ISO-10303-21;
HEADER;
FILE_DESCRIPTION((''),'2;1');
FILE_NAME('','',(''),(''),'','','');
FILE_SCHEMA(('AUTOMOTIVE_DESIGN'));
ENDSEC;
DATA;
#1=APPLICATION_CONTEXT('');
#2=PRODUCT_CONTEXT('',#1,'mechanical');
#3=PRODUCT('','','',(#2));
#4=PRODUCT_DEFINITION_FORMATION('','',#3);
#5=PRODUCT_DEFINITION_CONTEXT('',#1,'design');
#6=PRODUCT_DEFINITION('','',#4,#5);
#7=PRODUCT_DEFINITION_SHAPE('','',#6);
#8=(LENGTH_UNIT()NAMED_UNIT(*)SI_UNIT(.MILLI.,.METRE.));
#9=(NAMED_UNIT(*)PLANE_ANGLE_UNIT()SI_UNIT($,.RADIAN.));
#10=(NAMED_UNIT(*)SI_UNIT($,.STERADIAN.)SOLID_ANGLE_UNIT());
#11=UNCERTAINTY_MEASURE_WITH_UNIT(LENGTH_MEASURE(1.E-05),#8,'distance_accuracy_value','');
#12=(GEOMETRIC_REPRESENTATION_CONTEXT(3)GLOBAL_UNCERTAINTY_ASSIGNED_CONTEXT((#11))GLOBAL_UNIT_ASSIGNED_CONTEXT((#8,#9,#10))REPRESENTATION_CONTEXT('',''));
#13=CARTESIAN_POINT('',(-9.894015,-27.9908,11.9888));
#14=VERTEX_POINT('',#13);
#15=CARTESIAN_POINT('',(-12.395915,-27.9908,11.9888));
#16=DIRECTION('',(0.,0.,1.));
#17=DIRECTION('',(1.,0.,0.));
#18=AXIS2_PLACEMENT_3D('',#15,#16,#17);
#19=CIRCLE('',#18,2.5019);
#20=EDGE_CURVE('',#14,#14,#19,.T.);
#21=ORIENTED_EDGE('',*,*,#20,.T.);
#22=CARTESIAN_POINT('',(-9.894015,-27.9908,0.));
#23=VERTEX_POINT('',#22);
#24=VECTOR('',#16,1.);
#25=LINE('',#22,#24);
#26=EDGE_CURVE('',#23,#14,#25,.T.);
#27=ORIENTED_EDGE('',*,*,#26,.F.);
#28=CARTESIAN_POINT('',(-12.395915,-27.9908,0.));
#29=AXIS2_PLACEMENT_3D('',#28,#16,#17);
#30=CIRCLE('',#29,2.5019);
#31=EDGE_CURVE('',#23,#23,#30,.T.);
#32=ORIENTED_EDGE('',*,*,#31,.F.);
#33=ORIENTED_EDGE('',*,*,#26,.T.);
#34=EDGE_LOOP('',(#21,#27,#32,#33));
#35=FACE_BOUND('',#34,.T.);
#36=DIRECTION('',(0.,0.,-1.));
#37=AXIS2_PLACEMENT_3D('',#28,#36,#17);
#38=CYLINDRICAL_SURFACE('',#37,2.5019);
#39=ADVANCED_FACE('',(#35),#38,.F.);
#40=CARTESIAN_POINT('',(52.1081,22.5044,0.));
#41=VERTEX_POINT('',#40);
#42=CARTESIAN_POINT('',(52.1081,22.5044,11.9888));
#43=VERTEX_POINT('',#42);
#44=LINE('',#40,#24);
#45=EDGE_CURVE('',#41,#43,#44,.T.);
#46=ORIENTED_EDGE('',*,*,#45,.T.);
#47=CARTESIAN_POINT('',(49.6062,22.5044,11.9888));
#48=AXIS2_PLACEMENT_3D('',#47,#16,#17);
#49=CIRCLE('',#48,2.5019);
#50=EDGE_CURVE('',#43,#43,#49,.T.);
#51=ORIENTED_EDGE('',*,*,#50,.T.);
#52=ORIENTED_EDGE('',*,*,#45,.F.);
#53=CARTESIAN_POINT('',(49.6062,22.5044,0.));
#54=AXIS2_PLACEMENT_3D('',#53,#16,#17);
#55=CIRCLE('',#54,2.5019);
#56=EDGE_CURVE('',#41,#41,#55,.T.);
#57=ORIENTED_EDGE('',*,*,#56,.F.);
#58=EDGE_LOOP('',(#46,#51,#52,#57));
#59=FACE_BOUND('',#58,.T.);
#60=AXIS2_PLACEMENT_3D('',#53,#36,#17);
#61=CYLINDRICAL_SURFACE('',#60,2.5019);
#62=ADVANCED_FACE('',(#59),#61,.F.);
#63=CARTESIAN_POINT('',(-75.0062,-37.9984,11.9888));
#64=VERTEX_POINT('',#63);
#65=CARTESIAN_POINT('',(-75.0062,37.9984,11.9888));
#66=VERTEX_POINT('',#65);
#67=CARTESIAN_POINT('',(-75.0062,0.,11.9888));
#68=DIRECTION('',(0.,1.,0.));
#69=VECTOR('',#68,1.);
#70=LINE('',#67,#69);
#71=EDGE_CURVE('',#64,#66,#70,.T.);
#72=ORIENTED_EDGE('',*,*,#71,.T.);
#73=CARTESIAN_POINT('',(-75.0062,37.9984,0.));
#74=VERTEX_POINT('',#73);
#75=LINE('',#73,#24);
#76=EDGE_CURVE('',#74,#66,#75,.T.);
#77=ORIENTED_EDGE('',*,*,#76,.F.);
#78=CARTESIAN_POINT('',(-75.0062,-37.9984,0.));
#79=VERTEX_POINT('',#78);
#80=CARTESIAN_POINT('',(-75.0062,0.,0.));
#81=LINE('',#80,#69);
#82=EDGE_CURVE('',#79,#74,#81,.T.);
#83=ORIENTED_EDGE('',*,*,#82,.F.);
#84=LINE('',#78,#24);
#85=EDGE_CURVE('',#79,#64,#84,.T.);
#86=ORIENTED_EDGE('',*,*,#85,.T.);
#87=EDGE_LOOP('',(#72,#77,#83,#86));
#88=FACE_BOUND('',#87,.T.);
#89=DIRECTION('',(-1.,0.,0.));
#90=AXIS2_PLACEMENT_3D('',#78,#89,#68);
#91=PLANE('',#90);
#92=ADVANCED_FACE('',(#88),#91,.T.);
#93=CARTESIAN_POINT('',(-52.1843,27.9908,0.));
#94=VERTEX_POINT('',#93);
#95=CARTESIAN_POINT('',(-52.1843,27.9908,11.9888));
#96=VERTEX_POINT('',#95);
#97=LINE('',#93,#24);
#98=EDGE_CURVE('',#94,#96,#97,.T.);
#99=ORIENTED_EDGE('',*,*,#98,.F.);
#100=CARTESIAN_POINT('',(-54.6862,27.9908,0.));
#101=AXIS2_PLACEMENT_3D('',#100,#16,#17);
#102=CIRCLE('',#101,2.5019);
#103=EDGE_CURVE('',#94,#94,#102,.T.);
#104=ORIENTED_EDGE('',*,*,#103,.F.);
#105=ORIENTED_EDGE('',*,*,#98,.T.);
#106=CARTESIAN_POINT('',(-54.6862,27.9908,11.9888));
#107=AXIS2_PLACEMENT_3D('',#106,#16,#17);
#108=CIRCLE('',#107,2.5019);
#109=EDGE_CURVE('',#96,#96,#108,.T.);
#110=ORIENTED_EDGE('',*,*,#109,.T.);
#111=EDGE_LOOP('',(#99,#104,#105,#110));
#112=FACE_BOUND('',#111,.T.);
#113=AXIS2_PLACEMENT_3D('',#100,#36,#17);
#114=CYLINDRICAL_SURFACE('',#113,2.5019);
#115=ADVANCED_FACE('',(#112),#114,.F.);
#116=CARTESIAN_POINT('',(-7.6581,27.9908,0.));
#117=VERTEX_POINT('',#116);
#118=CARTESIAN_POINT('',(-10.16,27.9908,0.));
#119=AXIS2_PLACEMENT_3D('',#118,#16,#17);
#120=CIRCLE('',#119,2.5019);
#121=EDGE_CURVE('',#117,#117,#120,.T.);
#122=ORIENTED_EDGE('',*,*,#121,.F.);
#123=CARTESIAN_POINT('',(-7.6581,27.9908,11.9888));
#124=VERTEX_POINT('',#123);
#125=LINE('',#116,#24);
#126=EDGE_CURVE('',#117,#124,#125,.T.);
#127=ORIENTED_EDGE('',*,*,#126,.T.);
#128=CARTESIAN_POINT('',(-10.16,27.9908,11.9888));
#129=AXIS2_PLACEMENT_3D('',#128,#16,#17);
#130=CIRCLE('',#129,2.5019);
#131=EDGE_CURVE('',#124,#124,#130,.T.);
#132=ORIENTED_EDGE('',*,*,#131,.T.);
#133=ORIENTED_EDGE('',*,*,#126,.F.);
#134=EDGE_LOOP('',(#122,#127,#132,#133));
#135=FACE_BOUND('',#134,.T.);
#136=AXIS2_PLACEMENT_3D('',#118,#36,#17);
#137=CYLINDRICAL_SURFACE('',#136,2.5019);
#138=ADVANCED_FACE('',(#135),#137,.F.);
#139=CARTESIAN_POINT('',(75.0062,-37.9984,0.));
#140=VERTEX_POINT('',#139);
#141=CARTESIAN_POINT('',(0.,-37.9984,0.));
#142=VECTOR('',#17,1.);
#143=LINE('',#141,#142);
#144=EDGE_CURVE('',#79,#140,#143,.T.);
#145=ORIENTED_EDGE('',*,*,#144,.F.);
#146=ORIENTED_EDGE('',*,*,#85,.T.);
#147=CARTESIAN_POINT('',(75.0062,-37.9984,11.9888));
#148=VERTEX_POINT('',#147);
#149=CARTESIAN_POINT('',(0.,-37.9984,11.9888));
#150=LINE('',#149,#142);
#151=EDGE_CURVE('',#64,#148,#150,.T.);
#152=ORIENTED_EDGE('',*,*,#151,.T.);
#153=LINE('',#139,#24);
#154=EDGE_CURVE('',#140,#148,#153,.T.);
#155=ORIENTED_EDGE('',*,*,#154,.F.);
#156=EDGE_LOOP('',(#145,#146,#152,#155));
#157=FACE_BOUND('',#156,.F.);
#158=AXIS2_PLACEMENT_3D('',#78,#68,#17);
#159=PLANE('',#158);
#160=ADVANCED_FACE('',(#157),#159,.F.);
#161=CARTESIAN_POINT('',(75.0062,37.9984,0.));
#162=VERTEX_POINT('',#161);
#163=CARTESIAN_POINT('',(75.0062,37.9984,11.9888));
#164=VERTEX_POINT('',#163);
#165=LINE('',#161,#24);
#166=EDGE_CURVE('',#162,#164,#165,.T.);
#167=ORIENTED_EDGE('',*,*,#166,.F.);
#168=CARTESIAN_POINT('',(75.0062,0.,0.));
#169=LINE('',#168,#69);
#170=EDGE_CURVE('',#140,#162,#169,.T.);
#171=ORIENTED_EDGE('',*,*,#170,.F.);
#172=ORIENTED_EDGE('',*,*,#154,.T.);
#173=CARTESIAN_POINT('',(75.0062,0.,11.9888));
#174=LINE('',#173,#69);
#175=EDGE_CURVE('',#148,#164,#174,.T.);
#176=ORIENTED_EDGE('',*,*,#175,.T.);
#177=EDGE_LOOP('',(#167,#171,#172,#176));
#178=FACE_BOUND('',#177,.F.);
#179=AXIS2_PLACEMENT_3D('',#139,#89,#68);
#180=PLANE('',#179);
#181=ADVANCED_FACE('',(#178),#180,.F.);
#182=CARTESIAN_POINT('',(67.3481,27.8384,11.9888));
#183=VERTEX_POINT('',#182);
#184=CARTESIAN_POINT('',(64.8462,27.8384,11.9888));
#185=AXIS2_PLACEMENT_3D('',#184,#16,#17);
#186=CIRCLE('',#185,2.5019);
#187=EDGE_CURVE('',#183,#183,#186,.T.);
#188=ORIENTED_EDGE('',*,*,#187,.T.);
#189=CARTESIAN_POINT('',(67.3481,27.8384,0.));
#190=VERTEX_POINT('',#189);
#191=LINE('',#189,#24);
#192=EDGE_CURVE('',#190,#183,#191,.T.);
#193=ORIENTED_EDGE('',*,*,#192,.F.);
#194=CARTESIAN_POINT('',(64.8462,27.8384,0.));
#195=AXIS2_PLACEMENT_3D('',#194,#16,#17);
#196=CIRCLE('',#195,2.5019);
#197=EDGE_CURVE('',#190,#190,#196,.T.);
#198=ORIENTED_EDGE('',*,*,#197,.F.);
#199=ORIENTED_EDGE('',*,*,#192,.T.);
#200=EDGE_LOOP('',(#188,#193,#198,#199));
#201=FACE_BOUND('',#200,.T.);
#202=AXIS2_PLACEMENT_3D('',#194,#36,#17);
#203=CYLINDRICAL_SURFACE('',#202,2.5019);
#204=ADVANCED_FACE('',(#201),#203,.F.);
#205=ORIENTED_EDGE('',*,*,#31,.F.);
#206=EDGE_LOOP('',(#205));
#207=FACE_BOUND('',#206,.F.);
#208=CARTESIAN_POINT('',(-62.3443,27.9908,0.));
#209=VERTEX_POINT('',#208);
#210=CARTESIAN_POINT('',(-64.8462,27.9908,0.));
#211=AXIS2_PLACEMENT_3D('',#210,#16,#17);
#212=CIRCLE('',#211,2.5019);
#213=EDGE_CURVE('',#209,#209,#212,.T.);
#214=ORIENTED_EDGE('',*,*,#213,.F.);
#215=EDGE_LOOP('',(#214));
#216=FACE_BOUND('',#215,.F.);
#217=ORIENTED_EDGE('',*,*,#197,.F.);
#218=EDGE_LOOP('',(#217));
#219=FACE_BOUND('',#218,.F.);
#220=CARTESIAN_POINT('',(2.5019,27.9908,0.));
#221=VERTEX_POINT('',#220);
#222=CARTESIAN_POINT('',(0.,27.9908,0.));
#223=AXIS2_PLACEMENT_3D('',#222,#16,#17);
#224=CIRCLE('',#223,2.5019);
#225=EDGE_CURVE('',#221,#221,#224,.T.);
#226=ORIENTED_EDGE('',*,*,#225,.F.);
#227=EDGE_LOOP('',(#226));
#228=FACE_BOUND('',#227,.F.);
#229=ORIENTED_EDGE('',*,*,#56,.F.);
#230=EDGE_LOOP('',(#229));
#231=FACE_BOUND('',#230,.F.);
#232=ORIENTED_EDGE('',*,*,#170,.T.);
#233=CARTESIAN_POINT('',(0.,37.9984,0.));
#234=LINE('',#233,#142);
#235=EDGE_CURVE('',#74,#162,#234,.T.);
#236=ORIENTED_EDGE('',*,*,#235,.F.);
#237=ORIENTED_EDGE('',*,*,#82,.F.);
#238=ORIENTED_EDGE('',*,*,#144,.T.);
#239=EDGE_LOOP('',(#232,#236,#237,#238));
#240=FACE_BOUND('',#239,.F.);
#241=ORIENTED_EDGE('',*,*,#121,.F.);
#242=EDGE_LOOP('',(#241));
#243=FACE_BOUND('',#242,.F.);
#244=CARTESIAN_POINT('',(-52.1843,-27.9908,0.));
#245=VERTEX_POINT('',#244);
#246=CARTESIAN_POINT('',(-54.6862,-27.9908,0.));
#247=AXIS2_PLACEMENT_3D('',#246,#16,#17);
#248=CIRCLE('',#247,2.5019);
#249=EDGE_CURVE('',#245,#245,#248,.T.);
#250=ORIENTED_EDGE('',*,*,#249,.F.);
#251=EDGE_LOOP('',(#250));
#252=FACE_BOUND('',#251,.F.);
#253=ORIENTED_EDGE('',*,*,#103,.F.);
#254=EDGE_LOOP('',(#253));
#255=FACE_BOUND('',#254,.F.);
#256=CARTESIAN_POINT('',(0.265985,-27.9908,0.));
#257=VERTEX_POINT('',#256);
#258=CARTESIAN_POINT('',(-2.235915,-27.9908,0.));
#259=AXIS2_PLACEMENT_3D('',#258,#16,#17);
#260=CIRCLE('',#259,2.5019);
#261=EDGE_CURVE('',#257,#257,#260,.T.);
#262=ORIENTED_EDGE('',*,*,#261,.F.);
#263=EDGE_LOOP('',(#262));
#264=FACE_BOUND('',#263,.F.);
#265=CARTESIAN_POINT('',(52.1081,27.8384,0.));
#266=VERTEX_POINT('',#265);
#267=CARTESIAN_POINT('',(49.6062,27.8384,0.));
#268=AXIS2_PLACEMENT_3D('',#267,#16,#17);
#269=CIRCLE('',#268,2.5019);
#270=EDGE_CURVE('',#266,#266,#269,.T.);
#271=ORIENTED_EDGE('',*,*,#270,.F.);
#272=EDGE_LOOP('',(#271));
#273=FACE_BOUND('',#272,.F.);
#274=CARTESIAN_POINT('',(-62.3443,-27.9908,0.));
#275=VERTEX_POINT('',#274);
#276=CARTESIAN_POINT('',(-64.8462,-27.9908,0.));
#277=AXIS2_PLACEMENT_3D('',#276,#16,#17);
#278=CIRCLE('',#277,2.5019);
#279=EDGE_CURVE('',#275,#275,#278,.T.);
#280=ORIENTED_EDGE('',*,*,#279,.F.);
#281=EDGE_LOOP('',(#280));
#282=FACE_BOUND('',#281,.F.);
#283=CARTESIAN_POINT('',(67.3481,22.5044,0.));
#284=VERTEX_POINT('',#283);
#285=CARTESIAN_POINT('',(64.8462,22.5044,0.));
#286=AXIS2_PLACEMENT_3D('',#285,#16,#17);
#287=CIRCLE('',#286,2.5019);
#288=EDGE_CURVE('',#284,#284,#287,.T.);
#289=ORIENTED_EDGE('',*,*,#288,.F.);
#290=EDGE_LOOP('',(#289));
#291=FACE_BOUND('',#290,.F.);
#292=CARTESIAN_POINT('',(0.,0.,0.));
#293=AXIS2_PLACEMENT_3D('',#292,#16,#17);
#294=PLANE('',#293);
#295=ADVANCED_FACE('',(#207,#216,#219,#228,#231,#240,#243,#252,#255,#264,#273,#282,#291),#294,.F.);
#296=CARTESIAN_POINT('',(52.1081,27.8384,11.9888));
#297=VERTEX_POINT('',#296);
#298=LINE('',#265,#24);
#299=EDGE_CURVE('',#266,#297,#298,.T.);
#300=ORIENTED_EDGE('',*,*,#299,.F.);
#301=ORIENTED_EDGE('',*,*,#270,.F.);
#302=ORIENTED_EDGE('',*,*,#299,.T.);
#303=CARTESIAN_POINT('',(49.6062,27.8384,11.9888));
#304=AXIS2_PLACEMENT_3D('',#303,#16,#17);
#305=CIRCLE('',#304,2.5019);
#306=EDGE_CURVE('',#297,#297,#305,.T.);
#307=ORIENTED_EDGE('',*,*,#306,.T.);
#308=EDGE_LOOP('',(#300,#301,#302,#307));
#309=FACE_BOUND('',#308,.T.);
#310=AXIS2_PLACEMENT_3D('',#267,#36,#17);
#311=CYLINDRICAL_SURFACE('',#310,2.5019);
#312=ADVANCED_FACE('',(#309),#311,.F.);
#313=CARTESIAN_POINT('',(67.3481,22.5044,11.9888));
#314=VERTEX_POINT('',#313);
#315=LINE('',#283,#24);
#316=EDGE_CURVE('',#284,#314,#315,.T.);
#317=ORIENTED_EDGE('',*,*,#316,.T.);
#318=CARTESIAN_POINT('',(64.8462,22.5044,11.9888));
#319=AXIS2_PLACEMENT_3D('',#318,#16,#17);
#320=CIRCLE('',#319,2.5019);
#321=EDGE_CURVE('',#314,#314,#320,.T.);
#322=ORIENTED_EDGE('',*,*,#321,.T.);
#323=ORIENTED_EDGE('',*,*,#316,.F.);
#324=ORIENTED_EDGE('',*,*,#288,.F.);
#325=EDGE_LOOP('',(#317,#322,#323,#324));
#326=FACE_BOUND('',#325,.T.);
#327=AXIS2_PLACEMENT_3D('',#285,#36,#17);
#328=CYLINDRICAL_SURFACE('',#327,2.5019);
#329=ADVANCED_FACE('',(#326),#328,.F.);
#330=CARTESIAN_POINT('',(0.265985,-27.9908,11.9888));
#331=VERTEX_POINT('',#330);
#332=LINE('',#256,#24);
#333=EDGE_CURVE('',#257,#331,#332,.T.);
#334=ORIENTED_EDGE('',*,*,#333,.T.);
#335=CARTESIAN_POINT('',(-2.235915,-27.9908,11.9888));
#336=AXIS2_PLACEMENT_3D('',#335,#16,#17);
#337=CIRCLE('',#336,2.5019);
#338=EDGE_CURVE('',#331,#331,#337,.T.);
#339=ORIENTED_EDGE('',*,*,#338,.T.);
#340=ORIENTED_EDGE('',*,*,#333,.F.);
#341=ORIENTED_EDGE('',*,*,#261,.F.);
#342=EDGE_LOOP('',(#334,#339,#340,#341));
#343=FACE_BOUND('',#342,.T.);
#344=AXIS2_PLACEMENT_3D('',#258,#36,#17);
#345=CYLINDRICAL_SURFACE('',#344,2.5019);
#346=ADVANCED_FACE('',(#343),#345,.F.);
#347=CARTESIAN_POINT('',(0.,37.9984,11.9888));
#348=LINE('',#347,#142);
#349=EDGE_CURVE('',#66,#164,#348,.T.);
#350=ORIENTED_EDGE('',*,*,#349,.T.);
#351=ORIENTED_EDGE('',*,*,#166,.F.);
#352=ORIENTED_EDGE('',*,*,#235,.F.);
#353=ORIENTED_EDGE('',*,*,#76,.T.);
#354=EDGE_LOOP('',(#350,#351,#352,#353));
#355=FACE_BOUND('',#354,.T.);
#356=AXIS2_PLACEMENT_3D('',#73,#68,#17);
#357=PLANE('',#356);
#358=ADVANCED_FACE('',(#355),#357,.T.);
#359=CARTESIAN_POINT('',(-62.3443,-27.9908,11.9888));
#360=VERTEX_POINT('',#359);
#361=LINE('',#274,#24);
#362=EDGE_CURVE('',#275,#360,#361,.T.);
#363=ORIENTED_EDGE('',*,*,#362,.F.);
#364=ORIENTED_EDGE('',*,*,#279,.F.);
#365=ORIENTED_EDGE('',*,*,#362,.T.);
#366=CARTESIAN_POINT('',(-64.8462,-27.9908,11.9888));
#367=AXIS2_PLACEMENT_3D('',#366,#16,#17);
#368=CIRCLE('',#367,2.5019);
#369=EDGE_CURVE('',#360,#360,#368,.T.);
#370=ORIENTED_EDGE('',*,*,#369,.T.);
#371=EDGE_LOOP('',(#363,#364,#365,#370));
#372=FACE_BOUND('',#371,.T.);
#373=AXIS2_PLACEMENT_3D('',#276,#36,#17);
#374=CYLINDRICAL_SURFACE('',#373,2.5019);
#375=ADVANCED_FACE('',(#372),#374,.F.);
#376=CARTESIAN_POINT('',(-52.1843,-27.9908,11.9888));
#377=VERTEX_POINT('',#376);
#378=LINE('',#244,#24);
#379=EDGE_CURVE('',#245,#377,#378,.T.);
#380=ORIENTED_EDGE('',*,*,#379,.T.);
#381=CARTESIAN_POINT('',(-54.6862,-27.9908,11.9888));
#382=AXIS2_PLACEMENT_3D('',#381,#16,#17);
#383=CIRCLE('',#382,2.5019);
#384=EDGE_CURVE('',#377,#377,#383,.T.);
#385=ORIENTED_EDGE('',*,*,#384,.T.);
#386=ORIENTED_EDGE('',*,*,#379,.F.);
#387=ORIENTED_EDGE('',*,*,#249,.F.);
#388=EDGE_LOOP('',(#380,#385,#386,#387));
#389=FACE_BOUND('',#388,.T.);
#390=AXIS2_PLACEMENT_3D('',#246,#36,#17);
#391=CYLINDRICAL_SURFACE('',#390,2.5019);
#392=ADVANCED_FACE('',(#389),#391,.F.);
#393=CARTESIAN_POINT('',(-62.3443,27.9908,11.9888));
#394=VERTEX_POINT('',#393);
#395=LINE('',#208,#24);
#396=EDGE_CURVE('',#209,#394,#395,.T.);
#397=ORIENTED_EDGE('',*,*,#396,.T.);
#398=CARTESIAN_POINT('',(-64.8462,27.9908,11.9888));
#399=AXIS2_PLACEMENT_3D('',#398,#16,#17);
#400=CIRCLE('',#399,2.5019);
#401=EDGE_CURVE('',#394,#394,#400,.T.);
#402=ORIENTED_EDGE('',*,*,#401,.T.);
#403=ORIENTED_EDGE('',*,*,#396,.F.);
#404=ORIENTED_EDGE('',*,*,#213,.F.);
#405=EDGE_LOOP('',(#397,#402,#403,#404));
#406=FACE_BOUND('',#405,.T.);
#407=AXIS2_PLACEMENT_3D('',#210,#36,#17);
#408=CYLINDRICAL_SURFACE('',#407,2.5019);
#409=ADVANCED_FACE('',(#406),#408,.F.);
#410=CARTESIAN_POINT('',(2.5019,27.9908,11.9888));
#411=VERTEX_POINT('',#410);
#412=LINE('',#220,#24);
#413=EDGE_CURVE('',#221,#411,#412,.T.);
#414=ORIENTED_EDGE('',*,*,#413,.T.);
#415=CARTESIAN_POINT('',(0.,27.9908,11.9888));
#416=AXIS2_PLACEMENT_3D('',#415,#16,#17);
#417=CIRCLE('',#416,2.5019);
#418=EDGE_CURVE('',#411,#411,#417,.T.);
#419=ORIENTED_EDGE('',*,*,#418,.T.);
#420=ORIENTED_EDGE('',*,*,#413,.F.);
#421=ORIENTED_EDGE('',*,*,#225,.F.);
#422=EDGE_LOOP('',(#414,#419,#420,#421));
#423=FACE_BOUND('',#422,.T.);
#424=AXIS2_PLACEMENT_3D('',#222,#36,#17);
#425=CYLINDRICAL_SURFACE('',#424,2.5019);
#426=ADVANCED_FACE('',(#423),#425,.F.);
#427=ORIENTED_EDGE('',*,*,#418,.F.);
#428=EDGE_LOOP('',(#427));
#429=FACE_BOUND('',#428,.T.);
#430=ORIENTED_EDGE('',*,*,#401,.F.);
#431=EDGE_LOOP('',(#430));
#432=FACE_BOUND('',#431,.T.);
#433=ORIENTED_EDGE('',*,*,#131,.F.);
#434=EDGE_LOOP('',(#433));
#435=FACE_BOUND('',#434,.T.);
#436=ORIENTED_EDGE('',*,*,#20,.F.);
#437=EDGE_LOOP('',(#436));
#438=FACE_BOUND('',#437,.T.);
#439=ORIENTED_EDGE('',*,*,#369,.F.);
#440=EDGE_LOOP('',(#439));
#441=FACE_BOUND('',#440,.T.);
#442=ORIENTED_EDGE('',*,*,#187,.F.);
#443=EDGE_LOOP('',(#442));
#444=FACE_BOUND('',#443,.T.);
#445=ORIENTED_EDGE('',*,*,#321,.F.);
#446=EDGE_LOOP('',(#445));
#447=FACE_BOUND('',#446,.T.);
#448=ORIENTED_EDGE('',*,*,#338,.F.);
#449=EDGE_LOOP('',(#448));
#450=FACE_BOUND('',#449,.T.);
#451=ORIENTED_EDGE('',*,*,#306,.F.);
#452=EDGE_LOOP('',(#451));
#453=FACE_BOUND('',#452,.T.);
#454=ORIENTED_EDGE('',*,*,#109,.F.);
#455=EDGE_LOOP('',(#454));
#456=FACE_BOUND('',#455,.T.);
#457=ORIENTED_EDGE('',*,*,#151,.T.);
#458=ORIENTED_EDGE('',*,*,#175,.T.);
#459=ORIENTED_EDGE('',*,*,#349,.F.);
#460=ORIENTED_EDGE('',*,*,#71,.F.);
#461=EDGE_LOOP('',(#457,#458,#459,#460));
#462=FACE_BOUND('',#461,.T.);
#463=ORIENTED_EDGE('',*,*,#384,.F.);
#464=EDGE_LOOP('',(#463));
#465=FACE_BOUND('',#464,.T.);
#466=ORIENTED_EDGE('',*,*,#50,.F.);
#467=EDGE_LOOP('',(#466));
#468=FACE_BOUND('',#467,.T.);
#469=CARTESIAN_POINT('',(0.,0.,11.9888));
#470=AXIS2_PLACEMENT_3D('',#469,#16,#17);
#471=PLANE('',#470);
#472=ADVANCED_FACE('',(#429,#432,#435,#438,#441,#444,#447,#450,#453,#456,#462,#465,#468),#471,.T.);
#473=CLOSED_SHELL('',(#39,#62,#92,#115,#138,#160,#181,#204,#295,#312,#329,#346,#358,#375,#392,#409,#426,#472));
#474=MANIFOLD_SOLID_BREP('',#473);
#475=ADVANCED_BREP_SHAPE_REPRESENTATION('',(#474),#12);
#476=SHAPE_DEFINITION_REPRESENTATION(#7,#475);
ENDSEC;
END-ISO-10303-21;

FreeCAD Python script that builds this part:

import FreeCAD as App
import Part
import Sketcher

V = App.Vector
Q = App.Units.Quantity


def add_polygon(sketch, points):
    """Adds a closed chain of lines whose ends are joined by coincident constraints."""
    first, n = sketch.GeometryCount, len(points)
    for a, b in zip(points, points[1:] + points[:1]):
        sketch.addGeometry(Part.LineSegment(App.Vector(*a, 0), App.Vector(*b, 0)), False)
    for i in range(n):
        sketch.addConstraint(Sketcher.Constraint("Coincident", first + i, 2, first + (i + 1) % n, 1))

doc = App.newDocument("Part")
body = doc.addObject("PartDesign::Body", "Body")

sketch1 = body.newObject("Sketcher::SketchObject", "Sketch")
sketch1.AttachmentSupport = (doc.getObject("XY_Plane"), [""])
sketch1.MapMode = "FlatFace"
add_polygon(sketch1, [(-75, 38), (-75, -38), (75, -38), (75, 38)])
sketch1.addGeometry(Part.Circle(V(-64.8, -28, 0), V(0, 0, 1), 2.5), False)
sketch1.addGeometry(Part.Circle(V(-54.7, -28, 0), V(0, 0, 1), 2.5), False)
sketch1.addGeometry(Part.Circle(V(-12.4, -28, 0), V(0, 0, 1), 2.5), False)
sketch1.addGeometry(Part.Circle(V(-2.2, -28, 0), V(0, 0, 1), 2.5), False)
sketch1.addGeometry(Part.Circle(V(-64.8, 28, 0), V(0, 0, 1), 2.5), False)
sketch1.addGeometry(Part.Circle(V(-54.7, 28, 0), V(0, 0, 1), 2.5), False)
sketch1.addGeometry(Part.Circle(V(-10.2, 28, 0), V(0, 0, 1), 2.5), False)
sketch1.addGeometry(Part.Circle(V(0, 28, 0), V(0, 0, 1), 2.5), False)
sketch1.addGeometry(Part.Circle(V(49.6, 22.5, 0), V(0, 0, 1), 2.5), False)
sketch1.addGeometry(Part.Circle(V(64.8, 22.5, 0), V(0, 0, 1), 2.5), False)
sketch1.addGeometry(Part.Circle(V(49.6, 27.8, 0), V(0, 0, 1), 2.5), False)
sketch1.addGeometry(Part.Circle(V(64.8, 27.8, 0), V(0, 0, 1), 2.5), False)
sketch1.addConstraint([
    Sketcher.Constraint("Vertical", 0),
    Sketcher.Constraint("Horizontal", 1),
    Sketcher.Constraint("Vertical", 2),
    Sketcher.Constraint("Horizontal", 3),
    Sketcher.Constraint("Equal", 4, 5),
    Sketcher.Constraint("Equal", 5, 6),
    Sketcher.Constraint("Equal", 6, 7),
    Sketcher.Constraint("Equal", 7, 8),
    Sketcher.Constraint("Equal", 8, 9),
    Sketcher.Constraint("Equal", 9, 10),
    Sketcher.Constraint("Equal", 10, 11),
    Sketcher.Constraint("Equal", 11, 12),
    Sketcher.Constraint("Equal", 12, 13),
    Sketcher.Constraint("Equal", 13, 14),
    Sketcher.Constraint("Equal", 14, 15),
    Sketcher.Constraint("Symmetric", 0, 2, 2, 2, -1, 1),
    Sketcher.Constraint("Symmetric", 4, 3, 8, 3, -1),
    Sketcher.Constraint("Symmetric", 5, 3, 9, 3, -1),
    Sketcher.Constraint("PointOnObject", 11, 3, -2),
    Sketcher.Constraint("Horizontal", 4, 3, 5, 3),
    Sketcher.Constraint("Horizontal", 5, 3, 6, 3),
    Sketcher.Constraint("Horizontal", 6, 3, 7, 3),
    Sketcher.Constraint("Horizontal", 9, 3, 10, 3),
    Sketcher.Constraint("Horizontal", 10, 3, 11, 3),
    Sketcher.Constraint("Horizontal", 12, 3, 13, 3),
    Sketcher.Constraint("Horizontal", 14, 3, 15, 3),
    Sketcher.Constraint("Vertical", 12, 3, 14, 3),
    Sketcher.Constraint("Vertical", 13, 3, 15, 3),
    Sketcher.Constraint("Diameter", 4, Q("0.197 in")),
    Sketcher.Constraint("DistanceX", 12, 3, 1, 2, Q("1 in")),
    Sketcher.Constraint("DistanceX", 10, 3, -1, 1, Q("0.4 in")),
    Sketcher.Constraint("DistanceX", 4, 3, 5, 3, Q("0.4 in")),
    Sketcher.Constraint("DistanceX", 6, 3, 7, 3, Q("0.4 in")),
    Sketcher.Constraint("DistanceX", 12, 3, 13, 3, Q("0.6 in")),
    Sketcher.Constraint("DistanceX", 0, 2, 4, 3, Q("0.4 in")),
    Sketcher.Constraint("DistanceY", 15, 3, 2, 2, Q("0.4 in")),
    Sketcher.Constraint("DistanceX", 1, 1, 1, 2, Q("5.906 in")),
    Sketcher.Constraint("DistanceY", 0, 2, 0, 1, Q("2.992 in")),
    Sketcher.Constraint("DistanceY", 12, 3, 14, 3, Q("0.21 in")),
    Sketcher.Constraint("DistanceY", 4, 3, -1, 1, Q("1.102 in")),
    Sketcher.Constraint("DistanceX", 6, 3, -1, 1, Q("12.395915 mm")),
])
pad1 = body.newObject("PartDesign::Pad", "Pad")
pad1.Profile = sketch1
pad1.Length = Q("0.472 in")

doc.recompute()
